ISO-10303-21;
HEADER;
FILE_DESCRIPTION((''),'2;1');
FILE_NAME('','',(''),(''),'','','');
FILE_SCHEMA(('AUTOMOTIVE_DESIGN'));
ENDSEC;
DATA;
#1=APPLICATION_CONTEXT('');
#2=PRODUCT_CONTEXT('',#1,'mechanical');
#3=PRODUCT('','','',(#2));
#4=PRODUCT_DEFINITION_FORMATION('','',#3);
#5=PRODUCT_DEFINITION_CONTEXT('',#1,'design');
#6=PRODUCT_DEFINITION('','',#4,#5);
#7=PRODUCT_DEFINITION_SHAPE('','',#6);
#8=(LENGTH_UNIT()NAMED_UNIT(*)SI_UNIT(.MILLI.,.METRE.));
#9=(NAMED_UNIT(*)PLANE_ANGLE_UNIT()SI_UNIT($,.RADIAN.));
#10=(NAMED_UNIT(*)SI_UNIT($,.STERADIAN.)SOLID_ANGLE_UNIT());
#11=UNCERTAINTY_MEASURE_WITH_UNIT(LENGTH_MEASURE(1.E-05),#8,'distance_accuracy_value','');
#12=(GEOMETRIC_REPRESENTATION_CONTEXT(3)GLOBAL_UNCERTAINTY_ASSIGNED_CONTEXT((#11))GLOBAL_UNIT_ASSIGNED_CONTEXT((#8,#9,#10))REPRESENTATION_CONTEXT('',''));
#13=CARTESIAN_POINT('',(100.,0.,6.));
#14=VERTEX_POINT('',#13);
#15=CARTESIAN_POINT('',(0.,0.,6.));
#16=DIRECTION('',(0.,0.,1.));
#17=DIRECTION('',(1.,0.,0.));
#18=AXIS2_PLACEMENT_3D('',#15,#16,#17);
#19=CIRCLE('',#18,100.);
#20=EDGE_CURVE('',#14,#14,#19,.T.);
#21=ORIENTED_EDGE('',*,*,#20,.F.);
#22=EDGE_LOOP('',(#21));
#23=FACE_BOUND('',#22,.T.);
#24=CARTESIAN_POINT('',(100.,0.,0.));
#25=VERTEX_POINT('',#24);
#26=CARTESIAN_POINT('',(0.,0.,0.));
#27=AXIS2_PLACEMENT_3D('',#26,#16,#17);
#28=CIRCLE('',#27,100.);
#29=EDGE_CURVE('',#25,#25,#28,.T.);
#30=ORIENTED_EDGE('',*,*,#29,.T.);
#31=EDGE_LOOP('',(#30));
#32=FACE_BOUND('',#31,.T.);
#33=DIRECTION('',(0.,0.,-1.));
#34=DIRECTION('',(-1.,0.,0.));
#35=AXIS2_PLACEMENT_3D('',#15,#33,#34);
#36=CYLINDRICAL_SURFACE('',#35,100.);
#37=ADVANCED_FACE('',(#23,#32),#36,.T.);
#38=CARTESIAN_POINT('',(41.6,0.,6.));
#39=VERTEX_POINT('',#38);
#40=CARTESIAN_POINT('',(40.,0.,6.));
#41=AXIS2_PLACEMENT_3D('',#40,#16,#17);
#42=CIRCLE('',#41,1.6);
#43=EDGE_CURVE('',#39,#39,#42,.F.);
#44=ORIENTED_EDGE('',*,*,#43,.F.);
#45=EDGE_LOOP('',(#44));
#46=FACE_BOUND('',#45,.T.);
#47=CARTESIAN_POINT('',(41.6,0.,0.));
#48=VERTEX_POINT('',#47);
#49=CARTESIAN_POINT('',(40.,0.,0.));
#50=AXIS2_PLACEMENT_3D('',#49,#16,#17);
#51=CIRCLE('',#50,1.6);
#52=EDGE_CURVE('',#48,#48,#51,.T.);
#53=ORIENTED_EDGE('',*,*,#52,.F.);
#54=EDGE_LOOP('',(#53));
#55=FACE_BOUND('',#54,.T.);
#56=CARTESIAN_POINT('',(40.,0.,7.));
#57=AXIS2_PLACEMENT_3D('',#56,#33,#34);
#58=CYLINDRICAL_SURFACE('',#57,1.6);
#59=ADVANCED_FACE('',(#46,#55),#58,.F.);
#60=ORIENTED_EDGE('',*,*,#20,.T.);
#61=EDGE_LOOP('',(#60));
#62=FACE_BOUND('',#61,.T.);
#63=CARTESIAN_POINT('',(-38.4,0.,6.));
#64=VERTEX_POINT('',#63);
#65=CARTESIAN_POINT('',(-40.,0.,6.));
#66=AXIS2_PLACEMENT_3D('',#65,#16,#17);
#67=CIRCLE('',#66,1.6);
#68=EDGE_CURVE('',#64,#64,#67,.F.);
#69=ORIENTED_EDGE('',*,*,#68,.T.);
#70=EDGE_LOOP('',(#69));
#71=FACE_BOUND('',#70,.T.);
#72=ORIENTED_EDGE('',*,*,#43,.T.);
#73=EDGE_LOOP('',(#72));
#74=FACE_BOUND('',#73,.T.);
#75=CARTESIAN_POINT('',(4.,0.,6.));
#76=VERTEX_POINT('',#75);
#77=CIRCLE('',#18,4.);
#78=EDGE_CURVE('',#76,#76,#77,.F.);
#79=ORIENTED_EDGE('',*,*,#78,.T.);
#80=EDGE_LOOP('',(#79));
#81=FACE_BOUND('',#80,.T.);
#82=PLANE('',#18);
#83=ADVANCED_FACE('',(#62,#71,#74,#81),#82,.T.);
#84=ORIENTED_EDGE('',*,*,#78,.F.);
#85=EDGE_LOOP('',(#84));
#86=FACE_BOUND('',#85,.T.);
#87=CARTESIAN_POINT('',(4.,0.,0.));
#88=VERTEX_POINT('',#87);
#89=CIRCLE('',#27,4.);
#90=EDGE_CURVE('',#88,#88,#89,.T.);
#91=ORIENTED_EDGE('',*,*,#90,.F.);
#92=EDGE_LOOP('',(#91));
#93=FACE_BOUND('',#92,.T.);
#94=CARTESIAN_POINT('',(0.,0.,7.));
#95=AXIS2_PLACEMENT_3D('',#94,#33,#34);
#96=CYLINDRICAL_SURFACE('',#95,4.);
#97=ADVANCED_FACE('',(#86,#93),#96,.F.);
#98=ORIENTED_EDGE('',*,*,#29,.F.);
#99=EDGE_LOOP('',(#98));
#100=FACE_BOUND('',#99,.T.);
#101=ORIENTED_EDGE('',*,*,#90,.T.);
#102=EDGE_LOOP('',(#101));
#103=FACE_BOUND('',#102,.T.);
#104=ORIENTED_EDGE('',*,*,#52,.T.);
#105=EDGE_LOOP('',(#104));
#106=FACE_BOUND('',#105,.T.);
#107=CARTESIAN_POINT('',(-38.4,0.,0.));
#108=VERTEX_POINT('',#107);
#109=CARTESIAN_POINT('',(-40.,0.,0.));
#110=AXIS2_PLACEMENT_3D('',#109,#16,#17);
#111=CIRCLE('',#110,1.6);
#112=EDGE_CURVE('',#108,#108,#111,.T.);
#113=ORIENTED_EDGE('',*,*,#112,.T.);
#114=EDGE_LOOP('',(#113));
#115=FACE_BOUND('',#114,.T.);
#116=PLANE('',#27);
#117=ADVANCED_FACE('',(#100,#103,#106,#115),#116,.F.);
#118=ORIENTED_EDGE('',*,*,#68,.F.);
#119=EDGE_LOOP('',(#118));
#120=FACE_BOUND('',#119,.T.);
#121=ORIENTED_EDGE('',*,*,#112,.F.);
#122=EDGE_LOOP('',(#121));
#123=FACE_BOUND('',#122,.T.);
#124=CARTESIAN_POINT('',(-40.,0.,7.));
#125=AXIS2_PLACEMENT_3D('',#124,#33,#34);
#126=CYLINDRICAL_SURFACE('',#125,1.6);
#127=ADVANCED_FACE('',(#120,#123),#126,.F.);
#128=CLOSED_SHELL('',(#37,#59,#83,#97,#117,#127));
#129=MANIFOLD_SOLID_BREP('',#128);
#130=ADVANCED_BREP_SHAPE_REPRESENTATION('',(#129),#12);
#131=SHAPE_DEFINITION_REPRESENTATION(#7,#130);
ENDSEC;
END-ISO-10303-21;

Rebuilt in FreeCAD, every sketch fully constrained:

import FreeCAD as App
import Part
import Sketcher
from FreeCAD import Vector

doc = App.newDocument("Part")
body = doc.addObject("PartDesign::Body", "Body")

sketch1 = body.newObject("Sketcher::SketchObject", "Sketch")
sketch1.AttachmentSupport = (doc.getObject("XY_Plane"), [""])
sketch1.MapMode = "FlatFace"
sketch1.addGeometry(Part.Circle(Vector(0, 0, 0), Vector(0, 0, 1), 100), False)
sketch1.addConstraint(Sketcher.Constraint("Coincident", 0, 3, -1, 1))
sketch1.addConstraint(Sketcher.Constraint("Diameter", 0, 200.0))
pad1 = body.newObject("PartDesign::Pad", "Pad")
pad1.Profile = sketch1
pad1.Length = 6

sketch2 = body.newObject("Sketcher::SketchObject", "Sketch001")
sketch2.AttachmentSupport = (doc.getObject("XY_Plane"), [""])
sketch2.MapMode = "FlatFace"
sketch2.addGeometry(Part.Circle(Vector(0, 0, 0), Vector(0, 0, 1), 4), False)
sketch2.addGeometry(Part.Circle(Vector(40, 0, 0), Vector(0, 0, 1), 1.6), False)
sketch2.addGeometry(Part.Circle(Vector(-40, 0, 0), Vector(0, 0, 1), 1.6), False)
sketch2.addConstraint(Sketcher.Constraint("Coincident", 0, 3, -1, 1))
sketch2.addConstraint(Sketcher.Constraint("Equal", 1, 2))
sketch2.addConstraint(Sketcher.Constraint("Symmetric", 1, 3, 2, 3, -1, 1))
sketch2.addConstraint(Sketcher.Constraint("PointOnObject", 1, 3, -1))
sketch2.addConstraint(Sketcher.Constraint("Diameter", 0, 8.0))
sketch2.addConstraint(Sketcher.Constraint("Diameter", 1, 3.2))
sketch2.addConstraint(Sketcher.Constraint("DistanceX", -1, 1, 1, 3, 40.0))
pocket1 = body.newObject("PartDesign::Pocket", "Pocket")
pocket1.Profile = sketch2
pocket1.Length = 7
pocket1.Reversed = True

doc.recompute()
